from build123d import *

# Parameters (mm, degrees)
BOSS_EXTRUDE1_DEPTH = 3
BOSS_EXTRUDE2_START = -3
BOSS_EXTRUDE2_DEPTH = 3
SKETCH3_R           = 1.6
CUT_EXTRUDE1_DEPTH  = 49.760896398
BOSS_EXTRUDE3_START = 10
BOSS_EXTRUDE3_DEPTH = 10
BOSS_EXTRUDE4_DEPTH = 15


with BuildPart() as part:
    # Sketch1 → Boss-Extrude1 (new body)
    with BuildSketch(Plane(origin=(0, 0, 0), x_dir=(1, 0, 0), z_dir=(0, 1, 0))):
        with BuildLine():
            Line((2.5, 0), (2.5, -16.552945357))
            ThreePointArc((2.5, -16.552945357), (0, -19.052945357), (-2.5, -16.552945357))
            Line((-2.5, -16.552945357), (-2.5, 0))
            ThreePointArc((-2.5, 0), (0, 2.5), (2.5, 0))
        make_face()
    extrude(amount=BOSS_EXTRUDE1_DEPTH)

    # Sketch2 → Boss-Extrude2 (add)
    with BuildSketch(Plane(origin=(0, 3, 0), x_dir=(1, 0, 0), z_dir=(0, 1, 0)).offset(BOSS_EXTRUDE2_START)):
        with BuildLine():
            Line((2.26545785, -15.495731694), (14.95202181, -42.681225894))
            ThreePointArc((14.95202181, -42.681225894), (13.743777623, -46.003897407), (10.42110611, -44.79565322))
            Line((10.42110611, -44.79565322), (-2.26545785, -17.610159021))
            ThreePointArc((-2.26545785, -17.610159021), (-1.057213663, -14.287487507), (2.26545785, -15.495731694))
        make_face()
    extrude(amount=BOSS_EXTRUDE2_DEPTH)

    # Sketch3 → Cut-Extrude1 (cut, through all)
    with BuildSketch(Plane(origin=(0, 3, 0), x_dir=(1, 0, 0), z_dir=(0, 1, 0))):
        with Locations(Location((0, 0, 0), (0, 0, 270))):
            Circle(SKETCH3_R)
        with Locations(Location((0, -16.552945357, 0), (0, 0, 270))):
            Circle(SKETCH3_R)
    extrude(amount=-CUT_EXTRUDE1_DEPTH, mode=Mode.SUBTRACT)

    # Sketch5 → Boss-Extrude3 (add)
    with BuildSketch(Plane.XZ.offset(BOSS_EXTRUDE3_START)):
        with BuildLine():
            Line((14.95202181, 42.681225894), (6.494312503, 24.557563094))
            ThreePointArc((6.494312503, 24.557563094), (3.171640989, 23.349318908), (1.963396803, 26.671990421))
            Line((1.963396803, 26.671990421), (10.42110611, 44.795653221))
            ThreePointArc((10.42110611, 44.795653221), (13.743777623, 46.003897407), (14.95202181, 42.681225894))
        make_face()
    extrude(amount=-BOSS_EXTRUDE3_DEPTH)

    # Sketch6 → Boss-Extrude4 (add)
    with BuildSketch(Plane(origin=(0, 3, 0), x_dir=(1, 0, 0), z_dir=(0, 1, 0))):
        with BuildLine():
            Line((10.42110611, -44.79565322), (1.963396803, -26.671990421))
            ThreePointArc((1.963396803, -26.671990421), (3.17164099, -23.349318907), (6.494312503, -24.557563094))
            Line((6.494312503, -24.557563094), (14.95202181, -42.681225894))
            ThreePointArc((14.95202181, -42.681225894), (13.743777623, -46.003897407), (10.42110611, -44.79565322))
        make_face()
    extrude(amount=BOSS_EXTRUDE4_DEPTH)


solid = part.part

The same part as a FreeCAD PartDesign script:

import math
import FreeCAD as App
import Part
import Sketcher

V = App.Vector

doc = App.newDocument("Part")
body = doc.addObject("PartDesign::Body", "Body")

sketch1 = body.newObject("Sketcher::SketchObject", "Sketch")
sketch1.AttachmentSupport = (doc.getObject("XZ_Plane"), [""])
sketch1.MapMode = "FlatFace"
sketch1.addGeometry(Part.LineSegment(V(2.5, 16.552945, 0), V(2.5, 0, 0)), False)
sketch1.addGeometry(Part.ArcOfCircle(Part.Circle(V(0, 0, 0), V(0, 0, 1), 2.5), math.radians(180), math.radians(360)), False)
sketch1.addGeometry(Part.LineSegment(V(-2.5, 0, 0), V(-2.5, 16.552945, 0)), False)
sketch1.addGeometry(Part.ArcOfCircle(Part.Circle(V(0, 16.552945, 0), V(0, 0, 1), 2.5), math.radians(0), math.radians(180)), False)
sketch1.addConstraint(Sketcher.Constraint("Tangent", 0, 2, 1, 2))
sketch1.addConstraint(Sketcher.Constraint("Tangent", 1, 1, 2, 1))
sketch1.addConstraint(Sketcher.Constraint("Tangent", 2, 2, 3, 2))
sketch1.addConstraint(Sketcher.Constraint("Tangent", 3, 1, 0, 1))
sketch1.addConstraint(Sketcher.Constraint("Vertical", 0))
sketch1.addConstraint(Sketcher.Constraint("Vertical", 2))
sketch1.addConstraint(Sketcher.Constraint("Coincident", 1, 3, -1, 1))
sketch1.addConstraint(Sketcher.Constraint("Radius", 1, 2.5))
sketch1.addConstraint(Sketcher.Constraint("DistanceY", 0, 2, 0, 1, 16.552945))
pad1 = body.newObject("PartDesign::Pad", "Pad")
pad1.Profile = sketch1
pad1.Length = 3
pad1.Reversed = True

sketch2 = body.newObject("Sketcher::SketchObject", "Sketch001")
sketch2.AttachmentSupport = (doc.getObject("XZ_Plane"), [""])
sketch2.MapMode = "FlatFace"
sketch2.addGeometry(Part.LineSegment(V(14.952022, 42.681226, 0), V(2.265458, 15.495732, 0)), False)
sketch2.addGeometry(Part.ArcOfCircle(Part.Circle(V(0, 16.552945, 0), V(0, 0, 1), 2.5), math.radians(154.983107), math.radians(334.983107)), False)
sketch2.addGeometry(Part.LineSegment(V(-2.265458, 17.610159, 0), V(10.421106, 44.795653, 0)), False)
sketch2.addGeometry(Part.ArcOfCircle(Part.Circle(V(12.686564, 43.73844, 0), V(0, 0, 1), 2.5), math.radians(-25.016893), math.radians(154.983107)), False)
sketch2.addConstraint(Sketcher.Constraint("Tangent", 0, 2, 1, 2))
sketch2.addConstraint(Sketcher.Constraint("Tangent", 1, 1, 2, 1))
sketch2.addConstraint(Sketcher.Constraint("Tangent", 2, 2, 3, 2))
sketch2.addConstraint(Sketcher.Constraint("Tangent", 3, 1, 0, 1))
sketch2.addConstraint(Sketcher.Constraint("Equal", 1, 3))
sketch2.addConstraint(Sketcher.Constraint("PointOnObject", 1, 3, -2))
sketch2.addConstraint(Sketcher.Constraint("Radius", 1, 2.5))
sketch2.addConstraint(Sketcher.Constraint("Distance", 0, 30.0))
sketch2.addConstraint(Sketcher.Constraint("DistanceY", -1, 1, 3, 3, 43.73844))
sketch2.addConstraint(Sketcher.Constraint("DistanceY", -1, 1, 0, 2, 15.495732))
pad2 = body.newObject("PartDesign::Pad", "Pad001")
pad2.Profile = sketch2
pad2.Length = 3
pad2.Reversed = True

sketch3 = body.newObject("Sketcher::SketchObject", "Sketch002")
sketch3.AttachmentSupport = (doc.getObject("XZ_Plane"), [""])
sketch3.MapMode = "FlatFace"
sketch3.AttachmentOffset = App.Placement(V(0, 0, -3), App.Rotation())
sketch3.addGeometry(Part.Circle(V(0, 0, 0), V(0, 0, 1), 1.6), False)
sketch3.addGeometry(Part.Circle(V(0, 16.552945, 0), V(0, 0, 1), 1.6), False)
sketch3.addConstraint(Sketcher.Constraint("Coincident", 0, 3, -1, 1))
sketch3.addConstraint(Sketcher.Constraint("Equal", 0, 1))
sketch3.addConstraint(Sketcher.Constraint("PointOnObject", 1, 3, -2))
sketch3.addConstraint(Sketcher.Constraint("Diameter", 0, 3.2))
sketch3.addConstraint(Sketcher.Constraint("DistanceY", -1, 1, 1, 3, 16.552945))
pocket1 = body.newObject("PartDesign::Pocket", "Pocket")
pocket1.Profile = sketch3
pocket1.Type = "ThroughAll"
pocket1.Reversed = True

sketch4 = body.newObject("Sketcher::SketchObject", "Sketch003")
sketch4.AttachmentSupport = (doc.getObject("XZ_Plane"), [""])
sketch4.MapMode = "FlatFace"
sketch4.AttachmentOffset = App.Placement(V(0, 0, 10), App.Rotation())
sketch4.addGeometry(Part.LineSegment(V(6.494313, 24.557563, 0), V(14.952022, 42.681226, 0)), False)
sketch4.addGeometry(Part.ArcOfCircle(Part.Circle(V(12.686564, 43.73844, 0), V(0, 0, 1), 2.5), math.radians(-25.016893), math.radians(154.983107)), False)
sketch4.addGeometry(Part.LineSegment(V(10.421106, 44.795653, 0), V(1.963397, 26.67199, 0)), False)
sketch4.addGeometry(Part.ArcOfCircle(Part.Circle(V(4.228855, 25.614777, 0), V(0, 0, 1), 2.5), math.radians(154.983107), math.radians(334.983107)), False)
sketch4.addConstraint(Sketcher.Constraint("Tangent", 0, 2, 1, 1))
sketch4.addConstraint(Sketcher.Constraint("Tangent", 1, 2, 2, 1))
sketch4.addConstraint(Sketcher.Constraint("Tangent", 2, 2, 3, 1))
sketch4.addConstraint(Sketcher.Constraint("Tangent", 3, 2, 0, 1))
sketch4.addConstraint(Sketcher.Constraint("Equal", 1, 3))
sketch4.addConstraint(Sketcher.Constraint("Radius", 1, 2.5))
sketch4.addConstraint(Sketcher.Constraint("Distance", 0, 20.0))
sketch4.addConstraint(Sketcher.Constraint("DistanceY", -1, 1, 1, 3, 43.73844))
sketch4.addConstraint(Sketcher.Constraint("DistanceX", -1, 1, 0, 2, 14.952022))
sketch4.addConstraint(Sketcher.Constraint("DistanceY", -1, 1, 2, 2, 26.67199))
pad3 = body.newObject("PartDesign::Pad", "Pad002")
pad3.Profile = sketch4
pad3.Length = 10
pad3.Reversed = True

sketch5 = body.newObject("Sketcher::SketchObject", "Sketch004")
sketch5.AttachmentSupport = (doc.getObject("XZ_Plane"), [""])
sketch5.MapMode = "FlatFace"
sketch5.AttachmentOffset = App.Placement(V(0, 0, -3), App.Rotation())
sketch5.addGeometry(Part.LineSegment(V(1.963397, 26.67199, 0), V(10.421106, 44.795653, 0)), False)
sketch5.addGeometry(Part.ArcOfCircle(Part.Circle(V(12.686564, 43.73844, 0), V(0, 0, 1), 2.5), math.radians(-25.016893), math.radians(154.983107)), False)
sketch5.addGeometry(Part.LineSegment(V(14.952022, 42.681226, 0), V(6.494313, 24.557563, 0)), False)
sketch5.addGeometry(Part.ArcOfCircle(Part.Circle(V(4.228855, 25.614777, 0), V(0, 0, 1), 2.5), math.radians(154.983107), math.radians(334.983107)), False)
sketch5.addConstraint(Sketcher.Constraint("Tangent", 0, 2, 1, 2))
sketch5.addConstraint(Sketcher.Constraint("Tangent", 1, 1, 2, 1))
sketch5.addConstraint(Sketcher.Constraint("Tangent", 2, 2, 3, 2))
sketch5.addConstraint(Sketcher.Constraint("Tangent", 3, 1, 0, 1))
sketch5.addConstraint(Sketcher.Constraint("Equal", 1, 3))
sketch5.addConstraint(Sketcher.Constraint("Radius", 1, 2.5))
sketch5.addConstraint(Sketcher.Constraint("Distance", 0, 20.0))
sketch5.addConstraint(Sketcher.Constraint("DistanceY", -1, 1, 1, 3, 43.73844))
sketch5.addConstraint(Sketcher.Constraint("DistanceX", -1, 1, 1, 1, 14.952022))
sketch5.addConstraint(Sketcher.Constraint("DistanceY", -1, 1, 3, 1, 26.67199))
pad4 = body.newObject("PartDesign::Pad", "Pad003")
pad4.Profile = sketch5
pad4.Length = 15
pad4.Reversed = True

doc.recompute()
